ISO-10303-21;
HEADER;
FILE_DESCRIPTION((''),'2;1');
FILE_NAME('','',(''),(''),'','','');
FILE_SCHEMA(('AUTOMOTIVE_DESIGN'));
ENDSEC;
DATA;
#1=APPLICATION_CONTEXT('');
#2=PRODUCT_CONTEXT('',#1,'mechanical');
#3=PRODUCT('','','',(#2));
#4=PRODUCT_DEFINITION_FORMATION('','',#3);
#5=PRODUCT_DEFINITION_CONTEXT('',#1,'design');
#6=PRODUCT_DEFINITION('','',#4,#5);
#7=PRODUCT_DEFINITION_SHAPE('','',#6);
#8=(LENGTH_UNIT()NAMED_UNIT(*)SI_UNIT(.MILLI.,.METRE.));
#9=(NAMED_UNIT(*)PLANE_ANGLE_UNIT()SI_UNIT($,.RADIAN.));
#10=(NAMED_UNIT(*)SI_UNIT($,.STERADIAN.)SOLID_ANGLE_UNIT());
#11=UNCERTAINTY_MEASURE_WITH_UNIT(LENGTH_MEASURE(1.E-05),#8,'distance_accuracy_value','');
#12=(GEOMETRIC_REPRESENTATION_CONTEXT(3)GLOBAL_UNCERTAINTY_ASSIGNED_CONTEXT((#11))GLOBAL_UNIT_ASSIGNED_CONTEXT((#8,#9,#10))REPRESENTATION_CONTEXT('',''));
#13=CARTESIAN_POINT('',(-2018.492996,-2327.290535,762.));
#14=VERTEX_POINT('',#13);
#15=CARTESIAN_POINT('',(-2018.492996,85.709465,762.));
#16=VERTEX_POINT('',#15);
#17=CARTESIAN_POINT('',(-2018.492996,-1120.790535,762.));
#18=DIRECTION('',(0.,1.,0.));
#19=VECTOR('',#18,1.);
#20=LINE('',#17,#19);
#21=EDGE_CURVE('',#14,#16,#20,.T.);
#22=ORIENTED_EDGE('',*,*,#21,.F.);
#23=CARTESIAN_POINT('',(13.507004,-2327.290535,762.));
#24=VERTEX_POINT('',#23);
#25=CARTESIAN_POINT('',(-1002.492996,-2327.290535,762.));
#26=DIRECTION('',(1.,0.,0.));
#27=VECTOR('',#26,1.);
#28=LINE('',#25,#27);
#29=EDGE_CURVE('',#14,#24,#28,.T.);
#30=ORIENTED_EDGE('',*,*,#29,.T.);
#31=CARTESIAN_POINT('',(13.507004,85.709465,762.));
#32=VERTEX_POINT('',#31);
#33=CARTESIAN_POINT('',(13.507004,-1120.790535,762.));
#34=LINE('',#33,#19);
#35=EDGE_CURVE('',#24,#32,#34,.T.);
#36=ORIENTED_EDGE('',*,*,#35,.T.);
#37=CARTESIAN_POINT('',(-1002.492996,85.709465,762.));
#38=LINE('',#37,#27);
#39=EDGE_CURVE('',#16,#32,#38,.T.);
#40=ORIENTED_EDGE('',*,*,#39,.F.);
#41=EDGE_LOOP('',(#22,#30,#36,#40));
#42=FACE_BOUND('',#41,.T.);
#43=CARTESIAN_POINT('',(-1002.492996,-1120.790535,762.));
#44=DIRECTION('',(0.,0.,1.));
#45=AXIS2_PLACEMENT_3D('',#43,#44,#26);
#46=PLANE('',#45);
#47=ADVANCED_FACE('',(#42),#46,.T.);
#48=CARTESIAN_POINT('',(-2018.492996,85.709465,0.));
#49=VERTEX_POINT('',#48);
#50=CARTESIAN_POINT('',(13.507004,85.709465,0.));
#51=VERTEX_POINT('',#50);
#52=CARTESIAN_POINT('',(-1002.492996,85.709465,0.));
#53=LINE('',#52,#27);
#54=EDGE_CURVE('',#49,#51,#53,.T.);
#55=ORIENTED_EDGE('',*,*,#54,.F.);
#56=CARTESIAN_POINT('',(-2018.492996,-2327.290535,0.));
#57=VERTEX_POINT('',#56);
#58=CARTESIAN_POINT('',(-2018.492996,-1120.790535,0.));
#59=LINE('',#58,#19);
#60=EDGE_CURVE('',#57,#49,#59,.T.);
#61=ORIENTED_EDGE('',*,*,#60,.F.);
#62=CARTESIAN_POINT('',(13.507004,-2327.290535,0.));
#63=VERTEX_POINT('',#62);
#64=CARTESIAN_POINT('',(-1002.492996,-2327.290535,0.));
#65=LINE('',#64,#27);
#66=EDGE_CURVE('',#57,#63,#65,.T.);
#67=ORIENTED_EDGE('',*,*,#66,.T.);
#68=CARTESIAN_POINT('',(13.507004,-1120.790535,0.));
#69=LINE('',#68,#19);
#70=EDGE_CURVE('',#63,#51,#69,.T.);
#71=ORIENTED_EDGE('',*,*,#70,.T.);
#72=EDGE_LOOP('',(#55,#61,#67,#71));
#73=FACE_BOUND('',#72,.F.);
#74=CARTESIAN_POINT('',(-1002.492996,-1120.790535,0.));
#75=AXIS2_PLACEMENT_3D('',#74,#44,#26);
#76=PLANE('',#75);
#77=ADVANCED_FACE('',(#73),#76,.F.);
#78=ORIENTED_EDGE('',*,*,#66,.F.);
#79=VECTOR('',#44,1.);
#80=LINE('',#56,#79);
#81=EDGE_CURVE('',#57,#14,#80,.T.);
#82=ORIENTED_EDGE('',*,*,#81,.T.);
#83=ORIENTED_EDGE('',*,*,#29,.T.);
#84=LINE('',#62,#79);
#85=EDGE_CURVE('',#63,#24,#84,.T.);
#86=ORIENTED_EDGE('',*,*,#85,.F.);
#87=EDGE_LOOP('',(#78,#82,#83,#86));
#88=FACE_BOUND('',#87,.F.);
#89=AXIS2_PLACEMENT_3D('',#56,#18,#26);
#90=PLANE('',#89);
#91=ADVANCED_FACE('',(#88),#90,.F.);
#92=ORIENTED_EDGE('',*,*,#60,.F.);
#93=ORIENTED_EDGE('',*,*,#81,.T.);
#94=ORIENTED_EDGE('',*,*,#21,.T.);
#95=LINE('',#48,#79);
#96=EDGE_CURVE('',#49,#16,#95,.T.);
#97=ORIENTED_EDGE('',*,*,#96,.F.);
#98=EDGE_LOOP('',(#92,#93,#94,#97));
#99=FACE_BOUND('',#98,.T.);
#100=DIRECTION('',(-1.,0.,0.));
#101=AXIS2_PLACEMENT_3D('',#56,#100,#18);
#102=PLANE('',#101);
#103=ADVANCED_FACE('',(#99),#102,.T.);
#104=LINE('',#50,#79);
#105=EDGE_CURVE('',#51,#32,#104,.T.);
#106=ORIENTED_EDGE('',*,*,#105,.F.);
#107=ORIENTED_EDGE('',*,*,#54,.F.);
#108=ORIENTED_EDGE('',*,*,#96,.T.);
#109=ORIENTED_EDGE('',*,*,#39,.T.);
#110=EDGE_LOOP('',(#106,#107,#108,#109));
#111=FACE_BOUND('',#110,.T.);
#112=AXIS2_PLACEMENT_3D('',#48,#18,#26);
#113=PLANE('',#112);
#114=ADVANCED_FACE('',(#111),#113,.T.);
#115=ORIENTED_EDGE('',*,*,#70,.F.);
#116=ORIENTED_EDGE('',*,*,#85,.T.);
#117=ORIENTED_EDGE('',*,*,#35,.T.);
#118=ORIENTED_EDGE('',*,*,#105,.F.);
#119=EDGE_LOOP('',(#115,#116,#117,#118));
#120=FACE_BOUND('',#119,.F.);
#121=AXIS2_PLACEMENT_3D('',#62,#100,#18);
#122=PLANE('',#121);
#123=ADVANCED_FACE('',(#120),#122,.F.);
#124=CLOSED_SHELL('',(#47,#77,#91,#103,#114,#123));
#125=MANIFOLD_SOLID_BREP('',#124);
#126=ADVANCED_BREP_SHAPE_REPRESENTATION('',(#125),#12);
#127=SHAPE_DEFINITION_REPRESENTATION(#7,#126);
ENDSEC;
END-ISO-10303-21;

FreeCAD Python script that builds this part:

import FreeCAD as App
import Part
import Sketcher
from FreeCAD import Vector
Q = App.Units.Quantity

doc = App.newDocument("Part")
body = doc.addObject("PartDesign::Body", "Body")

sketch1 = body.newObject("Sketcher::SketchObject", "Sketch")
sketch1.AttachmentSupport = (doc.getObject("XY_Plane"), [""])
sketch1.MapMode = "FlatFace"
sketch1.addGeometry([
    Part.LineSegment(Vector(-2018, 86, 0), Vector(-2018, -2327, 0)),
    Part.LineSegment(Vector(-2018, -2327, 0), Vector(14, -2327, 0)),
    Part.LineSegment(Vector(14, -2327, 0), Vector(14, 86, 0)),
    Part.LineSegment(Vector(14, 86, 0), Vector(-2018, 86, 0)),
], False)
sketch1.addConstraint([
    Sketcher.Constraint("Coincident", 0, 2, 1, 1),
    Sketcher.Constraint("Coincident", 1, 2, 2, 1),
    Sketcher.Constraint("Coincident", 2, 2, 3, 1),
    Sketcher.Constraint("Coincident", 3, 2, 0, 1),
    Sketcher.Constraint("Vertical", 0),
    Sketcher.Constraint("Horizontal", 1),
    Sketcher.Constraint("Vertical", 2),
    Sketcher.Constraint("Horizontal", 3),
    Sketcher.Constraint("DistanceX", 1, 1, 1, 2, Q("80 in")),
    Sketcher.Constraint("DistanceY", 0, 2, 0, 1, Q("95 in")),
    Sketcher.Constraint("DistanceX", 0, 2, -1, 1, Q("2018.492996 mm")),
    Sketcher.Constraint("DistanceY", 0, 2, -1, 1, Q("2327.290535 mm")),
])
pad1 = body.newObject("PartDesign::Pad", "Pad")
pad1.Profile = sketch1
pad1.Length = Q("30 in")

doc.recompute()
